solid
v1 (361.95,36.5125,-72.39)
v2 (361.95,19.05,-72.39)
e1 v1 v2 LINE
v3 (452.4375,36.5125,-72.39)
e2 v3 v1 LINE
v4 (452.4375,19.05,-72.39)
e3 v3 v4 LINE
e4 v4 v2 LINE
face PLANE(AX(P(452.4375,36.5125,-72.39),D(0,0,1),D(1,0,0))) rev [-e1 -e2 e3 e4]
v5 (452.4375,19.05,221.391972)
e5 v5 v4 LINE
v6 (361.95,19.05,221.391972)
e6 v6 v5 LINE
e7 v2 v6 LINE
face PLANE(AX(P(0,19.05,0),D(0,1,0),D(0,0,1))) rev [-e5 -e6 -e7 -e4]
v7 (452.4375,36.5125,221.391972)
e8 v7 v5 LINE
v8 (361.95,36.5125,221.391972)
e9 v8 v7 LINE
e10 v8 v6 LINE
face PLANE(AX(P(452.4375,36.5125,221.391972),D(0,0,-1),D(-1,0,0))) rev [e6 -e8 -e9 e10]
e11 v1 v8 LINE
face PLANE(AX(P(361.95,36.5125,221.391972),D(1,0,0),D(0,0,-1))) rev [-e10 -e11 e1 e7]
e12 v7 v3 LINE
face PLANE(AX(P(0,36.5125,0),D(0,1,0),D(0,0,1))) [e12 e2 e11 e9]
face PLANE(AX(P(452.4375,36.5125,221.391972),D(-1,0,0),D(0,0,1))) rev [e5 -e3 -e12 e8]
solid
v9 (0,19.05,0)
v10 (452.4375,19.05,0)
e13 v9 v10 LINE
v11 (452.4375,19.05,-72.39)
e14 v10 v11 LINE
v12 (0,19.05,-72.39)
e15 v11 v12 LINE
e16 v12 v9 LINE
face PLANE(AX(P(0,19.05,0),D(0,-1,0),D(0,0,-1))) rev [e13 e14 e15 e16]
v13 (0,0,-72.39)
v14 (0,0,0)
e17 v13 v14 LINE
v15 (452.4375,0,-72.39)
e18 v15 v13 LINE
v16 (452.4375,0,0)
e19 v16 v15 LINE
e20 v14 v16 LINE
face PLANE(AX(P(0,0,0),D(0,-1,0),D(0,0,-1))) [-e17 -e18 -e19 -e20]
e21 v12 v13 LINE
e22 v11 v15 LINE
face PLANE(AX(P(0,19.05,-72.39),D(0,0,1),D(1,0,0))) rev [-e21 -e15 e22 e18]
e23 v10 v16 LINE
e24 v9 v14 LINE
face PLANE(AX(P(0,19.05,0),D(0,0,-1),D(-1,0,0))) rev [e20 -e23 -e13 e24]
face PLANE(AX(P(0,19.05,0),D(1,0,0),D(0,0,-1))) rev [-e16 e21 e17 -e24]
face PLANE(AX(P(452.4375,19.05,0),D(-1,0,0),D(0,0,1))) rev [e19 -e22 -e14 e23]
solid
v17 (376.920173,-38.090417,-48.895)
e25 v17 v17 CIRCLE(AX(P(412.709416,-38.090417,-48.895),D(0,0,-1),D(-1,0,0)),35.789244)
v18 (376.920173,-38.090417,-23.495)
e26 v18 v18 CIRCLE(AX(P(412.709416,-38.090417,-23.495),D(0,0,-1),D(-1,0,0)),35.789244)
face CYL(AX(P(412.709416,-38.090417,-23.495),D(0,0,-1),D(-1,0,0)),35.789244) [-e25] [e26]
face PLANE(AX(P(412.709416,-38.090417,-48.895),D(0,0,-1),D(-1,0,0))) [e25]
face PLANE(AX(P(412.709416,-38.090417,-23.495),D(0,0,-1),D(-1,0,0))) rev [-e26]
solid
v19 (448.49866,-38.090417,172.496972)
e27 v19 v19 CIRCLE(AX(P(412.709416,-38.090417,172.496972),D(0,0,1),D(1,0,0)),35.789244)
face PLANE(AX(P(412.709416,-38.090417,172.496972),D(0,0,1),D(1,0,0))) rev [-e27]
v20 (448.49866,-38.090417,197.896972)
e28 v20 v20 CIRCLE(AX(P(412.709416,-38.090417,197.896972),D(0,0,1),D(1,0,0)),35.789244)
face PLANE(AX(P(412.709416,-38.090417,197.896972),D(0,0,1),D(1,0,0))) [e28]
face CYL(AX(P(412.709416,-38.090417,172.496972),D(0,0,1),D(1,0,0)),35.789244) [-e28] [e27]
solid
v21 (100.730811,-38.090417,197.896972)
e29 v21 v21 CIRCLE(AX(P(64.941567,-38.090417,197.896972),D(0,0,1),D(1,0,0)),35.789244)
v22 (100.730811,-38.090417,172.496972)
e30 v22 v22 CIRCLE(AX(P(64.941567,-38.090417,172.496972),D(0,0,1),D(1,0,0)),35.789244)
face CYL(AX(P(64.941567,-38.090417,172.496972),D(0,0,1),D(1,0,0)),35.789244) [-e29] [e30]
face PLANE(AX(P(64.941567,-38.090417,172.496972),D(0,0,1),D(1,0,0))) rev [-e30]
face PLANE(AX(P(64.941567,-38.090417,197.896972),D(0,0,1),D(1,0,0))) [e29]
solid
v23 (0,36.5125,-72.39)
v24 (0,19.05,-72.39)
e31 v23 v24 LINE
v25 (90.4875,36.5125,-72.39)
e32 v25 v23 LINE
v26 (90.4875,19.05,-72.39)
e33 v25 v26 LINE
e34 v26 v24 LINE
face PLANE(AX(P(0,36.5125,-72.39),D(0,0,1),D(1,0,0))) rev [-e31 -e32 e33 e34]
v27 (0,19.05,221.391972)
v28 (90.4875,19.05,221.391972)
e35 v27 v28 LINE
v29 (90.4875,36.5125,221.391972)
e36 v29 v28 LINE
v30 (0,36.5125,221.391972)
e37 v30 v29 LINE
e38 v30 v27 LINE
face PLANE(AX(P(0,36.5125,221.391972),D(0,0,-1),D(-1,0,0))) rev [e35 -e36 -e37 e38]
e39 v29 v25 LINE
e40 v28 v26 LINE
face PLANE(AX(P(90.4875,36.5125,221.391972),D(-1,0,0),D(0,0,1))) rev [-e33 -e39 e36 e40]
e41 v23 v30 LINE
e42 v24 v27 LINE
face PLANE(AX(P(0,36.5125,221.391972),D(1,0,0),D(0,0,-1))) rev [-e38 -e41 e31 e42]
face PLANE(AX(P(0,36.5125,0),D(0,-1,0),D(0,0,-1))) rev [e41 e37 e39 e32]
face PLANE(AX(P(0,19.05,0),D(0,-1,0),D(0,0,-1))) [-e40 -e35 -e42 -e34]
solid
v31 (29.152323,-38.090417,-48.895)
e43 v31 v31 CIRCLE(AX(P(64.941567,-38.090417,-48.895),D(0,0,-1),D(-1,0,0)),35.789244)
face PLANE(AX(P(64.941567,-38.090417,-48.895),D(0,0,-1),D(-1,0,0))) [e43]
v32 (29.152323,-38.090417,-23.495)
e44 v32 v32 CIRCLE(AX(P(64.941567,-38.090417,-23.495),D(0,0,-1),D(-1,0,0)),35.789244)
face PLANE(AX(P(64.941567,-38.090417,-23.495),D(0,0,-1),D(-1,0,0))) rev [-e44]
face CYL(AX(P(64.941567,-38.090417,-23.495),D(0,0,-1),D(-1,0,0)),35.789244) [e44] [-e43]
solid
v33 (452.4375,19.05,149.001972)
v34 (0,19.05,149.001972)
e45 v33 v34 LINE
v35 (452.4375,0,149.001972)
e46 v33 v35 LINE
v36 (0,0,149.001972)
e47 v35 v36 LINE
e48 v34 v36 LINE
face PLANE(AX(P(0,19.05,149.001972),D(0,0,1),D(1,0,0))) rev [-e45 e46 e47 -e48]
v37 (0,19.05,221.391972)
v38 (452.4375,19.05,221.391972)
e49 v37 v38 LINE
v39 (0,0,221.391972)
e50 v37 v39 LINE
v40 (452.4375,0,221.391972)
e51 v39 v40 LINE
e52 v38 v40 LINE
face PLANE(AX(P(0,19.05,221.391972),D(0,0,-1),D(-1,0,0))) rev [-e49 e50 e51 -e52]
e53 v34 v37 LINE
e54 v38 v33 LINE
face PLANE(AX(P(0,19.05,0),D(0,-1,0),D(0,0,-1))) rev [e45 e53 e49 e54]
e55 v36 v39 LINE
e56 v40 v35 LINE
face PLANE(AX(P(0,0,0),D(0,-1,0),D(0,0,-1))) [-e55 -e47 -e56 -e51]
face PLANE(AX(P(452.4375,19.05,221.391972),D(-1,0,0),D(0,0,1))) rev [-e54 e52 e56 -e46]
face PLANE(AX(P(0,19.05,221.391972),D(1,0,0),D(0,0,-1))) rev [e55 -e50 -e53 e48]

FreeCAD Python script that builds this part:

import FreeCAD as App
import Part
import Sketcher
from FreeCAD import Vector
Q = App.Units.Quantity


def add_polygon(sketch, points):
    """Adds a closed chain of lines whose ends are joined by coincident constraints."""
    first, n = sketch.GeometryCount, len(points)
    for a, b in zip(points, points[1:] + points[:1]):
        sketch.addGeometry(Part.LineSegment(App.Vector(*a, 0), App.Vector(*b, 0)), False)
    for i in range(n):
        sketch.addConstraint(Sketcher.Constraint("Coincident", first + i, 2, first + (i + 1) % n, 1))

doc = App.newDocument("Part")
body = doc.addObject("PartDesign::Body", "Body")

sketch1 = doc.addObject("Sketcher::SketchObject", "Sketch")
body.addObject(sketch1)
sketch1.AttachmentSupport = (doc.XZ_Plane, [""])
sketch1.MapMode = "FlatFace"
add_polygon(sketch1, [(0, -72.39), (0, 0), (452.4375, 0), (452.4375, -72.39)])
sketch1.addConstraint([
    Sketcher.Constraint("Vertical", 0),
    Sketcher.Constraint("Horizontal", 1),
    Sketcher.Constraint("Vertical", 2),
    Sketcher.Constraint("Horizontal", 3),
    Sketcher.Constraint("Coincident", 0, 2, -1, 1),
    Sketcher.Constraint("DistanceY", 0, 1, 0, 2, Q("2.85 in")),
    Sketcher.Constraint("DistanceX", 1, 1, 1, 2, Q("17.8125 in")),
])
pad1 = doc.addObject("PartDesign::Pad", "Pad")
body.addObject(pad1)
pad1.Profile = sketch1
pad1.Length = Q("0.75 in")
pad1.Reversed = True
body2 = doc.addObject("PartDesign::Body", "Body001")

sketch2 = doc.addObject("Sketcher::SketchObject", "Sketch001")
body2.addObject(sketch2)
sketch2.AttachmentSupport = (doc.getObject("XZ_Plane001"), [""])
sketch2.MapMode = "FlatFace"
add_polygon(sketch2, [(0, 149.001972), (0, 221.391972), (452.4375, 221.391972), (452.4375, 149.001972)])
sketch2.addConstraint([
    Sketcher.Constraint("Vertical", 0),
    Sketcher.Constraint("Horizontal", 1),
    Sketcher.Constraint("Vertical", 2),
    Sketcher.Constraint("Horizontal", 3),
    Sketcher.Constraint("PointOnObject", 0, 2, -2),
    Sketcher.Constraint("DistanceY", 0, 1, 0, 2, Q("2.85 in")),
    Sketcher.Constraint("DistanceX", 1, 1, 1, 2, Q("17.8125 in")),
    Sketcher.Constraint("DistanceY", -1, 1, 0, 2, Q("221.391972 mm")),
])
pad2 = doc.addObject("PartDesign::Pad", "Pad001")
body2.addObject(pad2)
pad2.Profile = sketch2
pad2.Length = Q("0.75 in")
pad2.Reversed = True
body3 = doc.addObject("PartDesign::Body", "Body002")

sketch3 = doc.addObject("Sketcher::SketchObject", "Sketch002")
body3.addObject(sketch3)
sketch3.AttachmentSupport = (doc.getObject("XZ_Plane002"), [""])
sketch3.MapMode = "FlatFace"
sketch3.AttachmentOffset = App.Placement(Vector(0, 0, -0.75 * 25.4), App.Rotation())
add_polygon(sketch3, [(361.95, -72.39), (361.95, 221.391972), (452.4375, 221.391972), (452.4375, -72.39)])
sketch3.addConstraint([
    Sketcher.Constraint("Vertical", 0),
    Sketcher.Constraint("Horizontal", 1),
    Sketcher.Constraint("Vertical", 2),
    Sketcher.Constraint("Horizontal", 3),
    Sketcher.Constraint("DistanceX", 1, 1, 1, 2, Q("3.5625 in")),
    Sketcher.Constraint("DistanceX", -1, 1, 0, 2, Q("14.25 in")),
    Sketcher.Constraint("DistanceY", 2, 2, -1, 1, Q("2.85 in")),
    Sketcher.Constraint("DistanceY", 0, 1, 0, 2, Q("293.781972 mm")),
])
pad3 = doc.addObject("PartDesign::Pad", "Pad002")
body3.addObject(pad3)
pad3.Profile = sketch3
pad3.Length = Q("0.6875 in")
pad3.Reversed = True
body4 = doc.addObject("PartDesign::Body", "Body003")

sketch4 = doc.addObject("Sketcher::SketchObject", "Sketch003")
body4.addObject(sketch4)
sketch4.AttachmentSupport = (doc.getObject("XZ_Plane003"), [""])
sketch4.MapMode = "FlatFace"
sketch4.AttachmentOffset = App.Placement(Vector(0, 0, -0.75 * 25.4), App.Rotation())
add_polygon(sketch4, [(0, -72.39), (0, 221.391972), (90.4875, 221.391972), (90.4875, -72.39)])
sketch4.addConstraint([
    Sketcher.Constraint("Vertical", 0),
    Sketcher.Constraint("Horizontal", 1),
    Sketcher.Constraint("Vertical", 2),
    Sketcher.Constraint("Horizontal", 3),
    Sketcher.Constraint("PointOnObject", 0, 2, -2),
    Sketcher.Constraint("DistanceX", 1, 1, 1, 2, Q("3.5625 in")),
    Sketcher.Constraint("DistanceY", 2, 2, -1, 1, Q("2.85 in")),
    Sketcher.Constraint("DistanceY", 0, 1, 0, 2, Q("293.781972 mm")),
])
pad4 = doc.addObject("PartDesign::Pad", "Pad003")
body4.addObject(pad4)
pad4.Profile = sketch4
pad4.Length = Q("0.6875 in")
pad4.Reversed = True
body5 = doc.addObject("PartDesign::Body", "Body004")

sketch5 = doc.addObject("Sketcher::SketchObject", "Sketch004")
body5.addObject(sketch5)
sketch5.AttachmentSupport = (doc.getObject("XY_Plane004"), [""])
sketch5.MapMode = "FlatFace"
sketch5.AttachmentOffset = App.Placement(Vector(0, 0, 185.196972), App.Rotation())
sketch5.addGeometry(Part.Circle(Vector(64.941567, -38.090417, 0), Vector(0, 0, 1), 35.789244), False)
sketch5.addConstraint([
    Sketcher.Constraint("Diameter", 0, Q("71.578488 mm")),
    Sketcher.Constraint("DistanceX", -1, 1, 0, 3, Q("64.941567 mm")),
    Sketcher.Constraint("DistanceY", 0, 3, -1, 1, Q("38.090417 mm")),
])
pad5 = doc.addObject("PartDesign::Pad", "Pad004")
body5.addObject(pad5)
pad5.Profile = sketch5
pad5.Type = "TwoLengths"
pad5.Length = Q("0.5 in")
pad5.Length2 = Q("0.5 in")
body6 = doc.addObject("PartDesign::Body", "Body005")

sketch6 = doc.addObject("Sketcher::SketchObject", "Sketch005")
body6.addObject(sketch6)
sketch6.AttachmentSupport = (doc.getObject("XY_Plane005"), [""])
sketch6.MapMode = "FlatFace"
sketch6.AttachmentOffset = App.Placement(Vector(0, 0, 185.196972), App.Rotation())
sketch6.addGeometry(Part.Circle(Vector(412.709416, -38.090417, 0), Vector(0, 0, 1), 35.789244), False)
sketch6.addConstraint([
    Sketcher.Constraint("Diameter", 0, Q("71.578488 mm")),
    Sketcher.Constraint("DistanceX", -1, 1, 0, 3, Q("412.709416 mm")),
    Sketcher.Constraint("DistanceY", 0, 3, -1, 1, Q("38.090417 mm")),
])
pad6 = doc.addObject("PartDesign::Pad", "Pad005")
body6.addObject(pad6)
pad6.Profile = sketch6
pad6.Type = "TwoLengths"
pad6.Length = Q("0.5 in")
pad6.Length2 = Q("0.5 in")
body7 = doc.addObject("PartDesign::Body", "Body006")

sketch7 = doc.addObject("Sketcher::SketchObject", "Sketch006")
body7.addObject(sketch7)
sketch7.AttachmentSupport = (doc.getObject("XY_Plane006"), [""])
sketch7.MapMode = "FlatFace"
sketch7.AttachmentOffset = App.Placement(Vector(0, 0, -1.425 * 25.4), App.Rotation())
sketch7.addGeometry(Part.Circle(Vector(64.941567, -38.090417, 0), Vector(0, 0, 1), 35.789244), False)
sketch7.addConstraint([
    Sketcher.Constraint("Diameter", 0, Q("71.578488 mm")),
    Sketcher.Constraint("DistanceX", -1, 1, 0, 3, Q("64.941567 mm")),
    Sketcher.Constraint("DistanceY", 0, 3, -1, 1, Q("38.090417 mm")),
])
pad7 = doc.addObject("PartDesign::Pad", "Pad006")
body7.addObject(pad7)
pad7.Profile = sketch7
pad7.Type = "TwoLengths"
pad7.Length = Q("0.5 in")
pad7.Length2 = Q("0.5 in")
pad7.Reversed = True
body8 = doc.addObject("PartDesign::Body", "Body007")

sketch8 = doc.addObject("Sketcher::SketchObject", "Sketch007")
body8.addObject(sketch8)
sketch8.AttachmentSupport = (doc.getObject("XY_Plane007"), [""])
sketch8.MapMode = "FlatFace"
sketch8.AttachmentOffset = App.Placement(Vector(0, 0, -1.425 * 25.4), App.Rotation())
sketch8.addGeometry(Part.Circle(Vector(412.709416, -38.090417, 0), Vector(0, 0, 1), 35.789244), False)
sketch8.addConstraint([
    Sketcher.Constraint("Diameter", 0, Q("71.578488 mm")),
    Sketcher.Constraint("DistanceX", -1, 1, 0, 3, Q("412.709416 mm")),
    Sketcher.Constraint("DistanceY", 0, 3, -1, 1, Q("38.090417 mm")),
])
pad8 = doc.addObject("PartDesign::Pad", "Pad007")
body8.addObject(pad8)
pad8.Profile = sketch8
pad8.Type = "TwoLengths"
pad8.Length = Q("0.5 in")
pad8.Length2 = Q("0.5 in")
pad8.Reversed = True

doc.recompute()
